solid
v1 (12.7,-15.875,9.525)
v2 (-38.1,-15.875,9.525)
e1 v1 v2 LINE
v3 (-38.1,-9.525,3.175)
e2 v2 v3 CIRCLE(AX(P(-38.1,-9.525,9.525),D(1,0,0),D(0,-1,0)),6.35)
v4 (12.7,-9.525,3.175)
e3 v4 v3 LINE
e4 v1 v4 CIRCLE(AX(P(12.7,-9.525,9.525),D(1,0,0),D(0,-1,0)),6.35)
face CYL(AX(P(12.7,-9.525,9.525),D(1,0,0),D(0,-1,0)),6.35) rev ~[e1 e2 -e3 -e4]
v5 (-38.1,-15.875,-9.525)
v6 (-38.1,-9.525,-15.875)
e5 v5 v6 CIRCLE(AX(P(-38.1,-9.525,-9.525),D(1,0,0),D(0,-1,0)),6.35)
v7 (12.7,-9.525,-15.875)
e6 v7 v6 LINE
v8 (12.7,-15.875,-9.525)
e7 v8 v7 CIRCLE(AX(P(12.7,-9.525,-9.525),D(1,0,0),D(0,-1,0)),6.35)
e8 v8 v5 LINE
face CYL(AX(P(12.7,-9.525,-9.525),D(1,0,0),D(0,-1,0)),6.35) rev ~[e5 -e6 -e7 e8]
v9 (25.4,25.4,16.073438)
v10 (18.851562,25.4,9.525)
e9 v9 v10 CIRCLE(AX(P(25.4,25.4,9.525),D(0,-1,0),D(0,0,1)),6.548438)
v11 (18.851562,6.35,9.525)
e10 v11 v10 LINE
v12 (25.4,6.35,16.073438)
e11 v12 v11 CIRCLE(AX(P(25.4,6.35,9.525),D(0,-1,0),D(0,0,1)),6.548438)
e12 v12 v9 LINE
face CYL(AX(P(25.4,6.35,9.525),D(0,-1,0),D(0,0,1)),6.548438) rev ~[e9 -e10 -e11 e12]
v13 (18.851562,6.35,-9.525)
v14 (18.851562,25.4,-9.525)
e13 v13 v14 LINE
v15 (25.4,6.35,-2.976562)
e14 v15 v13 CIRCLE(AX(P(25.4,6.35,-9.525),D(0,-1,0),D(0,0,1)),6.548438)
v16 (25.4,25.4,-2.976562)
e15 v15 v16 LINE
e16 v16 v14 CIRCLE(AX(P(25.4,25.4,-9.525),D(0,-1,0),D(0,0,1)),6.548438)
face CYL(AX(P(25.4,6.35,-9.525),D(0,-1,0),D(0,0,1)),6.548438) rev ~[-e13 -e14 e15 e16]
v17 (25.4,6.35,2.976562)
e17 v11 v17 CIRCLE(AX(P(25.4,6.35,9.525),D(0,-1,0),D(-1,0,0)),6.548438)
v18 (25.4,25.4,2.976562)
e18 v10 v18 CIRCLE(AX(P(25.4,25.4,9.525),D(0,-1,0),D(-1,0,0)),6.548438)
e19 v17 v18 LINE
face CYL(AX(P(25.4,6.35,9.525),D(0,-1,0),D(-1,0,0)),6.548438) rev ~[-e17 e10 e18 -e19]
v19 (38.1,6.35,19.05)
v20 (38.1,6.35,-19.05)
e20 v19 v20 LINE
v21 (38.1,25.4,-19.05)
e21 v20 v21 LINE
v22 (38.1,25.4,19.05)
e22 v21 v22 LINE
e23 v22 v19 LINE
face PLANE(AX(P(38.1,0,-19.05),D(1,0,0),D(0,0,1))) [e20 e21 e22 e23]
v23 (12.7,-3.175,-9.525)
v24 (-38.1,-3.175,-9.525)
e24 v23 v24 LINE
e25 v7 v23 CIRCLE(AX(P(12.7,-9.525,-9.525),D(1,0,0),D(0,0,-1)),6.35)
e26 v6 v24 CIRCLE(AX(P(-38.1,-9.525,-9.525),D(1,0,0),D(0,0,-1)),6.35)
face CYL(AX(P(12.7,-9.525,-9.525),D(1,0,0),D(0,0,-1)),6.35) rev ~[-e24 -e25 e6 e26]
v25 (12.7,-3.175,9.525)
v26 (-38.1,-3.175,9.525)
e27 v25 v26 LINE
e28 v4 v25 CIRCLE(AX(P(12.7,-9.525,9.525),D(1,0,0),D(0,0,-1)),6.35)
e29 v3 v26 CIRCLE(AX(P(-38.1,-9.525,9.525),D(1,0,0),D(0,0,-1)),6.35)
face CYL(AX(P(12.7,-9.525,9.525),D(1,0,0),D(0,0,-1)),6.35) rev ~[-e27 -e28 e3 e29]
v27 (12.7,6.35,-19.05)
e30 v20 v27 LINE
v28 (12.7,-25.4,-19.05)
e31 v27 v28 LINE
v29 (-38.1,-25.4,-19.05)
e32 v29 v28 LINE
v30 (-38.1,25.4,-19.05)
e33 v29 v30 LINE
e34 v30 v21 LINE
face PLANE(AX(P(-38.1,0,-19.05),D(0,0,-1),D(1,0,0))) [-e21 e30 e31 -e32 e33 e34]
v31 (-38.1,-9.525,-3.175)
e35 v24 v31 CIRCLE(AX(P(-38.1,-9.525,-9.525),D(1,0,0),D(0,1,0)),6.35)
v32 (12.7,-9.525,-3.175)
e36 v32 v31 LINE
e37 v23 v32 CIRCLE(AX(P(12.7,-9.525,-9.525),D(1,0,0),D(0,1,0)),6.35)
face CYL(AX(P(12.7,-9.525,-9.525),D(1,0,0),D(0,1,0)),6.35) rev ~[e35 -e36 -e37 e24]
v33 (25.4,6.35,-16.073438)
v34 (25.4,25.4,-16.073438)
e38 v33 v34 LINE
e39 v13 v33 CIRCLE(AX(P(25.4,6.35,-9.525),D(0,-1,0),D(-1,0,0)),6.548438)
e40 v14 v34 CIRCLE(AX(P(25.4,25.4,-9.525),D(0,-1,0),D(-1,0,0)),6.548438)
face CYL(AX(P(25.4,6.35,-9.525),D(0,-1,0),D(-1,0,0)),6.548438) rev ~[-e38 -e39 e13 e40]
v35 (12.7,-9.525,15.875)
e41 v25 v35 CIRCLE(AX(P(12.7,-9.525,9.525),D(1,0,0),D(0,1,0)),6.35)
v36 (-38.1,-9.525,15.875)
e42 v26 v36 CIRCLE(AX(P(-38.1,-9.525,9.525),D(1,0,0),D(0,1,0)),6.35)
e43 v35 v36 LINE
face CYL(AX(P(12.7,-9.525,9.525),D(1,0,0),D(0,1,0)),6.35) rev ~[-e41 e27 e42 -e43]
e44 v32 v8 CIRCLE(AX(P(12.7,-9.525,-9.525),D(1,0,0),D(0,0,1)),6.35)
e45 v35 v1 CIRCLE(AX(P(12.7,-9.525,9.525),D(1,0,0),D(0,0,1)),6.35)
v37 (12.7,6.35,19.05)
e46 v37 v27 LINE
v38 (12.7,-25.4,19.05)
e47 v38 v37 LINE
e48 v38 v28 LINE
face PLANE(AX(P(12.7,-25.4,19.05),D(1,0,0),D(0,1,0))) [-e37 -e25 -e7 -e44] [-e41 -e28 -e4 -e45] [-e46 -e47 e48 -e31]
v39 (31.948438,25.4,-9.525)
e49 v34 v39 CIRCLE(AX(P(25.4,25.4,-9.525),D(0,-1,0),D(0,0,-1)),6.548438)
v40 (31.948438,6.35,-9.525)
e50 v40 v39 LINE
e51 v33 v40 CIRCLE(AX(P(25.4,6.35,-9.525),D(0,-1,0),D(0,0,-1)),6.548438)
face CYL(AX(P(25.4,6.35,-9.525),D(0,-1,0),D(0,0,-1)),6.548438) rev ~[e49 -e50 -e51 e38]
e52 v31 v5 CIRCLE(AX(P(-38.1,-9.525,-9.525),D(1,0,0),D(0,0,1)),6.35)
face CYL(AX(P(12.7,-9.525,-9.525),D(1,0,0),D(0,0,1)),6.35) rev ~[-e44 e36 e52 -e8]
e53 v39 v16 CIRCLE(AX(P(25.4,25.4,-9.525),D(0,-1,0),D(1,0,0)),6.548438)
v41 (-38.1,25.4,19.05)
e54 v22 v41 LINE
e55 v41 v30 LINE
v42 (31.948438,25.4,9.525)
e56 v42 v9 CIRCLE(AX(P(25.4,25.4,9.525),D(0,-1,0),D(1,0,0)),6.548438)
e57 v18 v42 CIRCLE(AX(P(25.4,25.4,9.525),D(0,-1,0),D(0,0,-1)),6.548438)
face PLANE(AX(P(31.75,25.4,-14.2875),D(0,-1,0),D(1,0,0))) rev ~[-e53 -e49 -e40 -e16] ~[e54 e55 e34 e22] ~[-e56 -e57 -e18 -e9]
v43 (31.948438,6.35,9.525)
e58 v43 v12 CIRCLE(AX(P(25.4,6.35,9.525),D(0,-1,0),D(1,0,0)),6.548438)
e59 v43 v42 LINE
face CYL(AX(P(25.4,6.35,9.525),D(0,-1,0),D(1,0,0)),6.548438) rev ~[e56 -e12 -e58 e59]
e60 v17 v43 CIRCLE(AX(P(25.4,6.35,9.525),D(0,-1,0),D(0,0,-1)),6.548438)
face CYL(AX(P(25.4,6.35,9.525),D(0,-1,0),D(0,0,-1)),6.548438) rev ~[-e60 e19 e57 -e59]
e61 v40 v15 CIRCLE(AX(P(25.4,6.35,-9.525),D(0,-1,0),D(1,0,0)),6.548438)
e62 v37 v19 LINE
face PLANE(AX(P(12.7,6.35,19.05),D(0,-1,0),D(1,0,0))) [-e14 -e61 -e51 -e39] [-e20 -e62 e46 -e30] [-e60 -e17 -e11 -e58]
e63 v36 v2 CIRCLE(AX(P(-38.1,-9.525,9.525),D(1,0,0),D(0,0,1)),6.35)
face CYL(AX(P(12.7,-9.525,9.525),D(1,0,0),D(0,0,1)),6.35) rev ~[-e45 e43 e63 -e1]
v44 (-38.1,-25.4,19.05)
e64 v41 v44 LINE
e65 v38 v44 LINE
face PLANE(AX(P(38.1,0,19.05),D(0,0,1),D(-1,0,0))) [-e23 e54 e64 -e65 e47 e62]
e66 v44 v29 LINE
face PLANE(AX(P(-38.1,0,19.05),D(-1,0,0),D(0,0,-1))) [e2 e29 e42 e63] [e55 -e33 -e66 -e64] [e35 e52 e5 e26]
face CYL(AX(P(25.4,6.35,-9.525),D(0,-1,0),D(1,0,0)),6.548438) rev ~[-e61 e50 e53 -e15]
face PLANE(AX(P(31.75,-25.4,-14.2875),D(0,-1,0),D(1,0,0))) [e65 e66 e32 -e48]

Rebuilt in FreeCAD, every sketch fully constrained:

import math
import FreeCAD as App
import Part
import Sketcher
from FreeCAD import Vector
Q = App.Units.Quantity


def add_polygon(sketch, points):
    """Adds a closed chain of lines whose ends are joined by coincident constraints."""
    first, n = sketch.GeometryCount, len(points)
    for a, b in zip(points, points[1:] + points[:1]):
        sketch.addGeometry(Part.LineSegment(App.Vector(*a, 0), App.Vector(*b, 0)), False)
    for i in range(n):
        sketch.addConstraint(Sketcher.Constraint("Coincident", first + i, 2, first + (i + 1) % n, 1))

doc = App.newDocument("Part")
params = doc.addObject("Spreadsheet::Sheet", "Params")
for row, (alias, value) in enumerate([
    ("sketch1_width", "3 in"),
    ("sketch1_height", "1.5 in"),
    ("pad1_length", "2 in"),
    ("sketch2_width", "1 in"),
    ("sketch2_height", "1.25 in"),
    ("sketch4_radius", "0.25 in"),
], start=1):
    params.set(f"A{row}", alias)
    params.set(f"B{row}", "=" + value)
    params.setAlias(f"B{row}", alias)

body = doc.addObject("PartDesign::Body", "Body")

# Sketch on XZ plane
sketch1 = body.newObject("Sketcher::SketchObject", "Sketch")
sketch1.AttachmentSupport = (doc.getObject("XZ_Plane"), [""])
sketch1.MapMode = "FlatFace"
add_polygon(sketch1, [(38, -19), (38, 19), (-38, 19), (-38, -19)])  # lines 0-3
sketch1.addConstraint(Sketcher.Constraint("Vertical", 0))
sketch1.addConstraint(Sketcher.Constraint("Horizontal", 1))
sketch1.addConstraint(Sketcher.Constraint("Vertical", 2))
sketch1.addConstraint(Sketcher.Constraint("Horizontal", 3))
sketch1.addConstraint(Sketcher.Constraint("Symmetric", 0, 2, 2, 2, -1, 1))
sketch1.addConstraint(Sketcher.Constraint("DistanceX", 1, 2, 1, 1, Q("3 in")))
sketch1.addConstraint(Sketcher.Constraint("DistanceY", 0, 1, 0, 2, Q("1.5 in")))
sketch1.setExpression("Constraints[9]", "Params.sketch1_width")
sketch1.setExpression("Constraints[10]", "Params.sketch1_height")
pad1 = body.newObject("PartDesign::Pad", "Pad")
pad1.Profile = sketch1
pad1.setExpression("Length", "Params.pad1_length")
pad1.Midplane = True

# Sketch on XY plane
sketch2 = body.newObject("Sketcher::SketchObject", "Sketch001")
sketch2.AttachmentSupport = (doc.getObject("XY_Plane"), [""])
sketch2.MapMode = "FlatFace"
sketch2.AttachmentOffset = App.Placement(Vector(0, 0, 0.75 * 25.4), App.Rotation())
add_polygon(sketch2, [(13, 6), (13, -25), (38, -25), (38, 6)])  # lines 0-3
sketch2.addConstraint(Sketcher.Constraint("Vertical", 0))
sketch2.addConstraint(Sketcher.Constraint("Horizontal", 1))
sketch2.addConstraint(Sketcher.Constraint("Vertical", 2))
sketch2.addConstraint(Sketcher.Constraint("Horizontal", 3))
sketch2.addConstraint(Sketcher.Constraint("DistanceX", 1, 1, 1, 2, Q("1 in")))
sketch2.addConstraint(Sketcher.Constraint("DistanceY", 0, 2, -1, 1, Q("1 in")))
sketch2.addConstraint(Sketcher.Constraint("DistanceY", 0, 2, 0, 1, Q("1.25 in")))
sketch2.addConstraint(Sketcher.Constraint("DistanceX", -1, 1, 0, 2, Q("0.5 in")))
sketch2.setExpression("Constraints[8]", "Params.sketch2_width")
sketch2.setExpression("Constraints[10]", "Params.sketch2_height")
pocket1 = body.newObject("PartDesign::Pocket", "Pocket")
pocket1.Profile = sketch2
pocket1.Type = "ThroughAll"

# Sketch on XZ plane
sketch3 = body.newObject("Sketcher::SketchObject", "Sketch002")
sketch3.AttachmentSupport = (doc.getObject("XZ_Plane"), [""])
sketch3.MapMode = "FlatFace"
sketch3.AttachmentOffset = App.Placement(Vector(0, 0, -0.25 * 25.4), App.Rotation())
sketch3.addGeometry(Part.ArcOfCircle(Part.Circle(Vector(25, 10, 0), Vector(0, 0, 1), 7), math.radians(0), math.radians(90)), False)
sketch3.addGeometry(Part.ArcOfCircle(Part.Circle(Vector(25, 10, 0), Vector(0, 0, 1), 7), math.radians(90), math.radians(180)), False)
sketch3.addGeometry(Part.ArcOfCircle(Part.Circle(Vector(25, 10, 0), Vector(0, 0, 1), 7), math.radians(180), math.radians(270)), False)
sketch3.addGeometry(Part.ArcOfCircle(Part.Circle(Vector(25, 10, 0), Vector(0, 0, 1), 7), math.radians(-90), math.radians(0)), False)
sketch3.addGeometry(Part.ArcOfCircle(Part.Circle(Vector(25, -10, 0), Vector(0, 0, 1), 7), math.radians(0), math.radians(90)), False)
sketch3.addGeometry(Part.ArcOfCircle(Part.Circle(Vector(25, -10, 0), Vector(0, 0, 1), 7), math.radians(90), math.radians(180)), False)
sketch3.addGeometry(Part.ArcOfCircle(Part.Circle(Vector(25, -10, 0), Vector(0, 0, 1), 7), math.radians(180), math.radians(270)), False)
sketch3.addGeometry(Part.ArcOfCircle(Part.Circle(Vector(25, -10, 0), Vector(0, 0, 1), 7), math.radians(-90), math.radians(0)), False)
sketch3.addConstraint(Sketcher.Constraint("Tangent", 0, 2, 1, 1))
sketch3.addConstraint(Sketcher.Constraint("Tangent", 1, 2, 2, 1))
sketch3.addConstraint(Sketcher.Constraint("Tangent", 2, 2, 3, 1))
sketch3.addConstraint(Sketcher.Constraint("Tangent", 3, 2, 0, 1))
sketch3.addConstraint(Sketcher.Constraint("Tangent", 4, 2, 5, 1))
sketch3.addConstraint(Sketcher.Constraint("Tangent", 5, 2, 6, 1))
sketch3.addConstraint(Sketcher.Constraint("Tangent", 6, 2, 7, 1))
sketch3.addConstraint(Sketcher.Constraint("Tangent", 7, 2, 4, 1))
sketch3.addConstraint(Sketcher.Constraint("Equal", 0, 1))
sketch3.addConstraint(Sketcher.Constraint("Equal", 3, 4))
sketch3.addConstraint(Sketcher.Constraint("Equal", 4, 5))
sketch3.addConstraint(Sketcher.Constraint("Symmetric", 0, 3, 4, 3, -1))
sketch3.addConstraint(Sketcher.Constraint("Horizontal", 3, 3, 1, 2))
sketch3.addConstraint(Sketcher.Constraint("Horizontal", 1, 2, 3, 2))
sketch3.addConstraint(Sketcher.Constraint("Horizontal", 7, 3, 5, 2))
sketch3.addConstraint(Sketcher.Constraint("Horizontal", 5, 2, 7, 2))
sketch3.addConstraint(Sketcher.Constraint("Vertical", 7, 3, 0, 2))
sketch3.addConstraint(Sketcher.Constraint("Vertical", 0, 2, 2, 2))
sketch3.addConstraint(Sketcher.Constraint("Vertical", 2, 2, 4, 2))
sketch3.addConstraint(Sketcher.Constraint("Vertical", 4, 2, 6, 2))
sketch3.addConstraint(Sketcher.Constraint("DistanceX", -1, 1, 0, 3, Q("1 in")))
sketch3.addConstraint(Sketcher.Constraint("DistanceY", 4, 3, 0, 3, Q("0.75 in")))
sketch3.addConstraint(Sketcher.Constraint("DistanceY", 4, 2, 2, 2, Q("0.234375 in")))
pocket2 = body.newObject("PartDesign::Pocket", "Pocket001")
pocket2.Profile = sketch3
pocket2.Type = "ThroughAll"

# Sketch on YZ plane
sketch4 = body.newObject("Sketcher::SketchObject", "Sketch003")
sketch4.AttachmentSupport = (doc.getObject("YZ_Plane"), [""])
sketch4.MapMode = "FlatFace"
sketch4.AttachmentOffset = App.Placement(Vector(0, 0, 0.5 * 25.4), App.Rotation())
sketch4.addGeometry(Part.ArcOfCircle(Part.Circle(Vector(-10, 10, 0), Vector(0, 0, 1), 6), math.radians(0), math.radians(90)), False)
sketch4.addGeometry(Part.ArcOfCircle(Part.Circle(Vector(-10, 10, 0), Vector(0, 0, 1), 6), math.radians(90), math.radians(180)), False)
sketch4.addGeometry(Part.ArcOfCircle(Part.Circle(Vector(-10, 10, 0), Vector(0, 0, 1), 6), math.radians(180), math.radians(270)), False)
sketch4.addGeometry(Part.ArcOfCircle(Part.Circle(Vector(-10, 10, 0), Vector(0, 0, 1), 6), math.radians(-90), math.radians(0)), False)
sketch4.addGeometry(Part.ArcOfCircle(Part.Circle(Vector(-10, -10, 0), Vector(0, 0, 1), 6), math.radians(0), math.radians(90)), False)
sketch4.addGeometry(Part.ArcOfCircle(Part.Circle(Vector(-10, -10, 0), Vector(0, 0, 1), 6), math.radians(90), math.radians(180)), False)
sketch4.addGeometry(Part.ArcOfCircle(Part.Circle(Vector(-10, -10, 0), Vector(0, 0, 1), 6), math.radians(180), math.radians(270)), False)
sketch4.addGeometry(Part.ArcOfCircle(Part.Circle(Vector(-10, -10, 0), Vector(0, 0, 1), 6), math.radians(-90), math.radians(0)), False)
sketch4.addConstraint(Sketcher.Constraint("Tangent", 0, 2, 1, 1))
sketch4.addConstraint(Sketcher.Constraint("Tangent", 1, 2, 2, 1))
sketch4.addConstraint(Sketcher.Constraint("Tangent", 2, 2, 3, 1))
sketch4.addConstraint(Sketcher.Constraint("Tangent", 3, 2, 0, 1))
sketch4.addConstraint(Sketcher.Constraint("Tangent", 4, 2, 5, 1))
sketch4.addConstraint(Sketcher.Constraint("Tangent", 5, 2, 6, 1))
sketch4.addConstraint(Sketcher.Constraint("Tangent", 6, 2, 7, 1))
sketch4.addConstraint(Sketcher.Constraint("Tangent", 7, 2, 4, 1))
sketch4.addConstraint(Sketcher.Constraint("Equal", 0, 1))
sketch4.addConstraint(Sketcher.Constraint("Equal", 3, 4))
sketch4.addConstraint(Sketcher.Constraint("Equal", 4, 5))
sketch4.addConstraint(Sketcher.Constraint("Symmetric", 0, 3, 4, 3, -1))
sketch4.addConstraint(Sketcher.Constraint("Horizontal", 3, 3, 1, 2))
sketch4.addConstraint(Sketcher.Constraint("Horizontal", 1, 2, 3, 2))
sketch4.addConstraint(Sketcher.Constraint("Horizontal", 7, 3, 5, 2))
sketch4.addConstraint(Sketcher.Constraint("Horizontal", 5, 2, 7, 2))
sketch4.addConstraint(Sketcher.Constraint("Vertical", 7, 3, 0, 2))
sketch4.addConstraint(Sketcher.Constraint("Vertical", 0, 2, 2, 2))
sketch4.addConstraint(Sketcher.Constraint("Vertical", 2, 2, 4, 2))
sketch4.addConstraint(Sketcher.Constraint("Vertical", 4, 2, 6, 2))
sketch4.addConstraint(Sketcher.Constraint("Radius", 0, Q("0.25 in")))
sketch4.addConstraint(Sketcher.Constraint("DistanceY", 4, 3, 0, 2, Q("1 in")))
sketch4.addConstraint(Sketcher.Constraint("DistanceX", 0, 3, -1, 1, Q("0.375 in")))
sketch4.setExpression("Constraints[20]", "Params.sketch4_radius")
pocket3 = body.newObject("PartDesign::Pocket", "Pocket002")
pocket3.Profile = sketch4
pocket3.Type = "ThroughAll"

doc.recompute()
